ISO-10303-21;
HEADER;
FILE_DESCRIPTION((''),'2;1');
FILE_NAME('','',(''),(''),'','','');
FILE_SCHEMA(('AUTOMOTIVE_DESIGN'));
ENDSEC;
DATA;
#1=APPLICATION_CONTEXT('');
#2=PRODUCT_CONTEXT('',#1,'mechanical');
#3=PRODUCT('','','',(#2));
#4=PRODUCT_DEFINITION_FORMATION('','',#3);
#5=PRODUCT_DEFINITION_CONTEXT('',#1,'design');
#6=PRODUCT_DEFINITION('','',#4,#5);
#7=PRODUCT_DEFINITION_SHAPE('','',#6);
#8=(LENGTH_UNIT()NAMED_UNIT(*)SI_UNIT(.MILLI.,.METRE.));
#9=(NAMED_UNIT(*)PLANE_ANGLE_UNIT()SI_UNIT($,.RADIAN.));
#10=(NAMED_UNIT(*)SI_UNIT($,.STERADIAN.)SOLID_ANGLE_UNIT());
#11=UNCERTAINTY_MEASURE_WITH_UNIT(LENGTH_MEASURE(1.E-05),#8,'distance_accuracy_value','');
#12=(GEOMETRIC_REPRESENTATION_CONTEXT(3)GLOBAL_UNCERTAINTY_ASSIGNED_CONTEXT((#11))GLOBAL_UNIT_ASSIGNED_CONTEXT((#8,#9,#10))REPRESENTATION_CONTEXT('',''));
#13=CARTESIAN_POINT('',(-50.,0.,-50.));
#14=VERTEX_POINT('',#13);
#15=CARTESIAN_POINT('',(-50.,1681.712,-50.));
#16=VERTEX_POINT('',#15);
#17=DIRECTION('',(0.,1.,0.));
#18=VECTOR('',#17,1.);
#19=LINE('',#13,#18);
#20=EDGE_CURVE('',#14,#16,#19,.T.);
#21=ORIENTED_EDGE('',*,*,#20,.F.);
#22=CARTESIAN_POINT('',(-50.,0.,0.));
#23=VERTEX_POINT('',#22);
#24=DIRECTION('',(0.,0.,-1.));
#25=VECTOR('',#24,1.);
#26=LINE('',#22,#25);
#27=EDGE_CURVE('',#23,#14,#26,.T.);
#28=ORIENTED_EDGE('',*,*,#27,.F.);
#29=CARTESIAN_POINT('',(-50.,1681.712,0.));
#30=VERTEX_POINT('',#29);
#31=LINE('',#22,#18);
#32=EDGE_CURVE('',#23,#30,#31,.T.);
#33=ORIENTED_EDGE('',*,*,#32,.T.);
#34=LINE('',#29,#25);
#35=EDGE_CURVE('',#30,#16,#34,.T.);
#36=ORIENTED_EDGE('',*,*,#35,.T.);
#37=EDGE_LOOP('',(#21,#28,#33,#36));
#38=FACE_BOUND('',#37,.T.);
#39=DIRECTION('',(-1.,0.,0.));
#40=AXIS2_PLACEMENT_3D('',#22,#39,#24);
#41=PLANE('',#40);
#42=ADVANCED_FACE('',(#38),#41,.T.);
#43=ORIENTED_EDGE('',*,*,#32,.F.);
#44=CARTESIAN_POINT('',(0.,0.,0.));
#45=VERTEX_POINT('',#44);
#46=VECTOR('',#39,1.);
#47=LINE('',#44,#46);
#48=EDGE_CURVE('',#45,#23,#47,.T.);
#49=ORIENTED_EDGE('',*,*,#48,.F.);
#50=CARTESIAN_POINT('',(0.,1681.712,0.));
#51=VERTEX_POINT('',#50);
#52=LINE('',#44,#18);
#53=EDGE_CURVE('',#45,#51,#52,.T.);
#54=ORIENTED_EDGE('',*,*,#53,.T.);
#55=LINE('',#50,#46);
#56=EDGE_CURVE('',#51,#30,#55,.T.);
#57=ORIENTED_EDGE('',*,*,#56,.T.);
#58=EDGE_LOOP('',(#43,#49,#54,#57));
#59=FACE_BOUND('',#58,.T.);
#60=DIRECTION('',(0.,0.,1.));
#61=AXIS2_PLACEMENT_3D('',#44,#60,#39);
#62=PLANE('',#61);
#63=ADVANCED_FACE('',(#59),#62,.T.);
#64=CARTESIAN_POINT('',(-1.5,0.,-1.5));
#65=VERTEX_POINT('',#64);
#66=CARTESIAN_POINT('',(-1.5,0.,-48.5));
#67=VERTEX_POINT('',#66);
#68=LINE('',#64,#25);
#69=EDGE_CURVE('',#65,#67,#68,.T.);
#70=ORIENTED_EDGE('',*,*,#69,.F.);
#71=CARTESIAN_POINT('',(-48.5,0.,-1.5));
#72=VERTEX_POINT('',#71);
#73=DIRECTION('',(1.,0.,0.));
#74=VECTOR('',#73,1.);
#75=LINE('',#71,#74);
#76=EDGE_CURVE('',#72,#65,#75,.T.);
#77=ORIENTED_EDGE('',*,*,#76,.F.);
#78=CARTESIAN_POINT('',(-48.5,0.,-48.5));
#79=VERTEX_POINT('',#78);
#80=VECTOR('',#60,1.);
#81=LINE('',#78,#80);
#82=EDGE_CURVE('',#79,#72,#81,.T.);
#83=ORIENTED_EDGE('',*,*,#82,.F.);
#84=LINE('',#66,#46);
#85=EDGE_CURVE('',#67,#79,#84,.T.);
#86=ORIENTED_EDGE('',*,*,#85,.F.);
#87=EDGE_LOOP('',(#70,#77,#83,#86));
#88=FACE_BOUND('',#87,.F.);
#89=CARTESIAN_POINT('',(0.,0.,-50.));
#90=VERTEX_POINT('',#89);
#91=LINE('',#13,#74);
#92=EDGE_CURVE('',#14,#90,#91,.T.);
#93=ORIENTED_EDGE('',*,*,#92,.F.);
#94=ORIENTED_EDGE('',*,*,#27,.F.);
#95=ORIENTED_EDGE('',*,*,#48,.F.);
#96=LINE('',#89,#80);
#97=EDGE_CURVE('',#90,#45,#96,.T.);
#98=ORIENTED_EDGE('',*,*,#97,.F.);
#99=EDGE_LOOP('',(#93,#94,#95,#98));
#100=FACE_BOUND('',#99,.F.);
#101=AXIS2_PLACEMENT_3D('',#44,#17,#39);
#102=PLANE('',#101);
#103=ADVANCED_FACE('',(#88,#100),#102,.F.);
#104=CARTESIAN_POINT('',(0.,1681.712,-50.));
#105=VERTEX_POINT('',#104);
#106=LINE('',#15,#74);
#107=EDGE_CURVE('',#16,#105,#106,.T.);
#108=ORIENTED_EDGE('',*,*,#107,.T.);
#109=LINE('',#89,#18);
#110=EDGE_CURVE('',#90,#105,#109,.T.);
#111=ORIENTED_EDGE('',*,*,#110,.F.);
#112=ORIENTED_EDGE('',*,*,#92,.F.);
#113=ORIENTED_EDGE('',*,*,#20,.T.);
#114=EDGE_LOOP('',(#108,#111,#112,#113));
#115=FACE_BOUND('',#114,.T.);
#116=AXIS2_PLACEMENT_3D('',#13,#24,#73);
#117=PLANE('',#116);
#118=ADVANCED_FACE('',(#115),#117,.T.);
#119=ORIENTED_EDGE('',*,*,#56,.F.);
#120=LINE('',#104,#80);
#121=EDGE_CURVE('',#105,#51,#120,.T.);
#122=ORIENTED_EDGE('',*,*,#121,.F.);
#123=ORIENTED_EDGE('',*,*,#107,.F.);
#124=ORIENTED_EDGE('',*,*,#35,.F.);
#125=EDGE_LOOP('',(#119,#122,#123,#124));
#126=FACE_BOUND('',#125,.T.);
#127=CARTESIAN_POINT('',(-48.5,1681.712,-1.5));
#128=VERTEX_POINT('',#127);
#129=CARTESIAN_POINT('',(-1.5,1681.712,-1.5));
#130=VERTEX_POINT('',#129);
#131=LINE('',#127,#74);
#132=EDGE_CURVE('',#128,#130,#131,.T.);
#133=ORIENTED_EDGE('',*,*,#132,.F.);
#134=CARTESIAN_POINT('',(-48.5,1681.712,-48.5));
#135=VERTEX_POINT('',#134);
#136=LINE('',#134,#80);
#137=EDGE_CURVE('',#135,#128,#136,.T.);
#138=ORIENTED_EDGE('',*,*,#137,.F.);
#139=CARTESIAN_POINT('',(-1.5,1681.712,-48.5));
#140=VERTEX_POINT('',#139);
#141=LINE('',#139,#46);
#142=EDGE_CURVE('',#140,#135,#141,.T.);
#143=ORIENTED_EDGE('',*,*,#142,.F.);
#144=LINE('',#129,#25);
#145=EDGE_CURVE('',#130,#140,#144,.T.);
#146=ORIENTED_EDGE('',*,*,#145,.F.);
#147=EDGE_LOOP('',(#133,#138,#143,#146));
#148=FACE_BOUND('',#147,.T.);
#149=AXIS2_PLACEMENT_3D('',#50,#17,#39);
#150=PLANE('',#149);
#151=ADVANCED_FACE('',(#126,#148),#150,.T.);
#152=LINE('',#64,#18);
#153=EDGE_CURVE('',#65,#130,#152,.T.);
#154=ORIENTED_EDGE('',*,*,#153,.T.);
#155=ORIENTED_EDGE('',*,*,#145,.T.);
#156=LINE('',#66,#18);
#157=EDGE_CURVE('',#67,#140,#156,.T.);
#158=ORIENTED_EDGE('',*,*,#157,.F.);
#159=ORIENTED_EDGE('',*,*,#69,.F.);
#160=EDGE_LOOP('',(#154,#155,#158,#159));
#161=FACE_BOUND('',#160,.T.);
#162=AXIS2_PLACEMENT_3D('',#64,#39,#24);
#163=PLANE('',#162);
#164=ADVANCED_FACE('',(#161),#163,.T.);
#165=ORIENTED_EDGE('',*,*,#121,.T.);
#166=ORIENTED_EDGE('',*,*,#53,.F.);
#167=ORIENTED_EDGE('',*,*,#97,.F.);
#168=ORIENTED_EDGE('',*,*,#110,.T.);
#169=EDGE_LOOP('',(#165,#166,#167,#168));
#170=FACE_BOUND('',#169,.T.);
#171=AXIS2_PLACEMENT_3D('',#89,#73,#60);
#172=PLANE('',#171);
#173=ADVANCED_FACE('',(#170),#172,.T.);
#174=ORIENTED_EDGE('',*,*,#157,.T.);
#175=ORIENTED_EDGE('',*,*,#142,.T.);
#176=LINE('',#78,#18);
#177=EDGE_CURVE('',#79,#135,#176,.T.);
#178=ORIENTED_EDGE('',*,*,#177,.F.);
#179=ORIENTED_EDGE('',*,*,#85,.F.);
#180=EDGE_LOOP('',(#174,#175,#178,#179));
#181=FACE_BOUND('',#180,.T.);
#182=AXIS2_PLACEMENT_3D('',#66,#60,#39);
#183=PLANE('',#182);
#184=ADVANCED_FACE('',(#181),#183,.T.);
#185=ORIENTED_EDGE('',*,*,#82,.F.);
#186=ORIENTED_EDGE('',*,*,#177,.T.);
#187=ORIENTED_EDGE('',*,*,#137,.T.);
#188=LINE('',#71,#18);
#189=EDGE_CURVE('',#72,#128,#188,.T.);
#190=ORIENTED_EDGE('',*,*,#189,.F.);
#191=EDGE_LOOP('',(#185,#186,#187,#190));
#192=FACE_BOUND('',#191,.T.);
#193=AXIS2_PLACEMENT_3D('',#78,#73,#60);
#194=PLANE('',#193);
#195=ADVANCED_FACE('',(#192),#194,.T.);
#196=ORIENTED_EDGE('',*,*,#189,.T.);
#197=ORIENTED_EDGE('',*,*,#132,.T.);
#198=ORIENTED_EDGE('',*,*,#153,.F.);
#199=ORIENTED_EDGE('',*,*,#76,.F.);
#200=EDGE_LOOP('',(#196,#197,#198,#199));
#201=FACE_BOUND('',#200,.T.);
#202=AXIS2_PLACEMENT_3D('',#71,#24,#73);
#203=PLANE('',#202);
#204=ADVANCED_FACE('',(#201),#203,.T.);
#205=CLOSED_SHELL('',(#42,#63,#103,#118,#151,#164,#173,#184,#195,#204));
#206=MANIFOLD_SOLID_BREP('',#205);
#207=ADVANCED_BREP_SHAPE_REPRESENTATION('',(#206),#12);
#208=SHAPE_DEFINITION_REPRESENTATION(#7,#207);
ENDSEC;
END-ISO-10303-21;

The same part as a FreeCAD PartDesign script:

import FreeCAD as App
import Part
import Sketcher

V = App.Vector
Q = App.Units.Quantity


def add_polygon(sketch, points):
    """Adds a closed chain of lines whose ends are joined by coincident constraints."""
    first, n = sketch.GeometryCount, len(points)
    for a, b in zip(points, points[1:] + points[:1]):
        sketch.addGeometry(Part.LineSegment(App.Vector(*a, 0), App.Vector(*b, 0)), False)
    for i in range(n):
        sketch.addConstraint(Sketcher.Constraint("Coincident", first + i, 2, first + (i + 1) % n, 1))

doc = App.newDocument("Part")
body = doc.addObject("PartDesign::Body", "Body")

# Sketch on XZ plane
sketch1 = body.newObject("Sketcher::SketchObject", "Sketch")
sketch1.AttachmentSupport = (doc.getObject("XZ_Plane"), [""])
sketch1.MapMode = "FlatFace"
add_polygon(sketch1, [(-50, 0), (0, 0), (0, -50), (-50, -50)])  # lines 0-3
add_polygon(sketch1, [(-48, -48), (-2, -48), (-2, -2), (-48, -2)])  # lines 4-7
sketch1.addConstraint(Sketcher.Constraint("Horizontal", 0))
sketch1.addConstraint(Sketcher.Constraint("Vertical", 1))
sketch1.addConstraint(Sketcher.Constraint("Horizontal", 2))
sketch1.addConstraint(Sketcher.Constraint("Vertical", 3))
sketch1.addConstraint(Sketcher.Constraint("Horizontal", 4))
sketch1.addConstraint(Sketcher.Constraint("Vertical", 5))
sketch1.addConstraint(Sketcher.Constraint("Horizontal", 6))
sketch1.addConstraint(Sketcher.Constraint("Vertical", 7))
sketch1.addConstraint(Sketcher.Constraint("Coincident", 0, 2, -1, 1))
sketch1.addConstraint(Sketcher.Constraint("Equal", 2, 1))
sketch1.addConstraint(Sketcher.Constraint("Equal", 6, 5))
sketch1.addConstraint(Sketcher.Constraint("DistanceX", 0, 1, 0, 2, Q("50 mm")))
sketch1.addConstraint(Sketcher.Constraint("DistanceX", 4, 2, -1, 1, Q("1.5 mm")))
sketch1.addConstraint(Sketcher.Constraint("DistanceY", 5, 2, -1, 1, Q("1.5 mm")))
sketch1.addConstraint(Sketcher.Constraint("DistanceY", 1, 2, 4, 2, Q("1.5 mm")))
pad1 = body.newObject("PartDesign::Pad", "Pad")
pad1.Profile = sketch1
pad1.Length = 1681.712
pad1.Reversed = True

doc.recompute()
